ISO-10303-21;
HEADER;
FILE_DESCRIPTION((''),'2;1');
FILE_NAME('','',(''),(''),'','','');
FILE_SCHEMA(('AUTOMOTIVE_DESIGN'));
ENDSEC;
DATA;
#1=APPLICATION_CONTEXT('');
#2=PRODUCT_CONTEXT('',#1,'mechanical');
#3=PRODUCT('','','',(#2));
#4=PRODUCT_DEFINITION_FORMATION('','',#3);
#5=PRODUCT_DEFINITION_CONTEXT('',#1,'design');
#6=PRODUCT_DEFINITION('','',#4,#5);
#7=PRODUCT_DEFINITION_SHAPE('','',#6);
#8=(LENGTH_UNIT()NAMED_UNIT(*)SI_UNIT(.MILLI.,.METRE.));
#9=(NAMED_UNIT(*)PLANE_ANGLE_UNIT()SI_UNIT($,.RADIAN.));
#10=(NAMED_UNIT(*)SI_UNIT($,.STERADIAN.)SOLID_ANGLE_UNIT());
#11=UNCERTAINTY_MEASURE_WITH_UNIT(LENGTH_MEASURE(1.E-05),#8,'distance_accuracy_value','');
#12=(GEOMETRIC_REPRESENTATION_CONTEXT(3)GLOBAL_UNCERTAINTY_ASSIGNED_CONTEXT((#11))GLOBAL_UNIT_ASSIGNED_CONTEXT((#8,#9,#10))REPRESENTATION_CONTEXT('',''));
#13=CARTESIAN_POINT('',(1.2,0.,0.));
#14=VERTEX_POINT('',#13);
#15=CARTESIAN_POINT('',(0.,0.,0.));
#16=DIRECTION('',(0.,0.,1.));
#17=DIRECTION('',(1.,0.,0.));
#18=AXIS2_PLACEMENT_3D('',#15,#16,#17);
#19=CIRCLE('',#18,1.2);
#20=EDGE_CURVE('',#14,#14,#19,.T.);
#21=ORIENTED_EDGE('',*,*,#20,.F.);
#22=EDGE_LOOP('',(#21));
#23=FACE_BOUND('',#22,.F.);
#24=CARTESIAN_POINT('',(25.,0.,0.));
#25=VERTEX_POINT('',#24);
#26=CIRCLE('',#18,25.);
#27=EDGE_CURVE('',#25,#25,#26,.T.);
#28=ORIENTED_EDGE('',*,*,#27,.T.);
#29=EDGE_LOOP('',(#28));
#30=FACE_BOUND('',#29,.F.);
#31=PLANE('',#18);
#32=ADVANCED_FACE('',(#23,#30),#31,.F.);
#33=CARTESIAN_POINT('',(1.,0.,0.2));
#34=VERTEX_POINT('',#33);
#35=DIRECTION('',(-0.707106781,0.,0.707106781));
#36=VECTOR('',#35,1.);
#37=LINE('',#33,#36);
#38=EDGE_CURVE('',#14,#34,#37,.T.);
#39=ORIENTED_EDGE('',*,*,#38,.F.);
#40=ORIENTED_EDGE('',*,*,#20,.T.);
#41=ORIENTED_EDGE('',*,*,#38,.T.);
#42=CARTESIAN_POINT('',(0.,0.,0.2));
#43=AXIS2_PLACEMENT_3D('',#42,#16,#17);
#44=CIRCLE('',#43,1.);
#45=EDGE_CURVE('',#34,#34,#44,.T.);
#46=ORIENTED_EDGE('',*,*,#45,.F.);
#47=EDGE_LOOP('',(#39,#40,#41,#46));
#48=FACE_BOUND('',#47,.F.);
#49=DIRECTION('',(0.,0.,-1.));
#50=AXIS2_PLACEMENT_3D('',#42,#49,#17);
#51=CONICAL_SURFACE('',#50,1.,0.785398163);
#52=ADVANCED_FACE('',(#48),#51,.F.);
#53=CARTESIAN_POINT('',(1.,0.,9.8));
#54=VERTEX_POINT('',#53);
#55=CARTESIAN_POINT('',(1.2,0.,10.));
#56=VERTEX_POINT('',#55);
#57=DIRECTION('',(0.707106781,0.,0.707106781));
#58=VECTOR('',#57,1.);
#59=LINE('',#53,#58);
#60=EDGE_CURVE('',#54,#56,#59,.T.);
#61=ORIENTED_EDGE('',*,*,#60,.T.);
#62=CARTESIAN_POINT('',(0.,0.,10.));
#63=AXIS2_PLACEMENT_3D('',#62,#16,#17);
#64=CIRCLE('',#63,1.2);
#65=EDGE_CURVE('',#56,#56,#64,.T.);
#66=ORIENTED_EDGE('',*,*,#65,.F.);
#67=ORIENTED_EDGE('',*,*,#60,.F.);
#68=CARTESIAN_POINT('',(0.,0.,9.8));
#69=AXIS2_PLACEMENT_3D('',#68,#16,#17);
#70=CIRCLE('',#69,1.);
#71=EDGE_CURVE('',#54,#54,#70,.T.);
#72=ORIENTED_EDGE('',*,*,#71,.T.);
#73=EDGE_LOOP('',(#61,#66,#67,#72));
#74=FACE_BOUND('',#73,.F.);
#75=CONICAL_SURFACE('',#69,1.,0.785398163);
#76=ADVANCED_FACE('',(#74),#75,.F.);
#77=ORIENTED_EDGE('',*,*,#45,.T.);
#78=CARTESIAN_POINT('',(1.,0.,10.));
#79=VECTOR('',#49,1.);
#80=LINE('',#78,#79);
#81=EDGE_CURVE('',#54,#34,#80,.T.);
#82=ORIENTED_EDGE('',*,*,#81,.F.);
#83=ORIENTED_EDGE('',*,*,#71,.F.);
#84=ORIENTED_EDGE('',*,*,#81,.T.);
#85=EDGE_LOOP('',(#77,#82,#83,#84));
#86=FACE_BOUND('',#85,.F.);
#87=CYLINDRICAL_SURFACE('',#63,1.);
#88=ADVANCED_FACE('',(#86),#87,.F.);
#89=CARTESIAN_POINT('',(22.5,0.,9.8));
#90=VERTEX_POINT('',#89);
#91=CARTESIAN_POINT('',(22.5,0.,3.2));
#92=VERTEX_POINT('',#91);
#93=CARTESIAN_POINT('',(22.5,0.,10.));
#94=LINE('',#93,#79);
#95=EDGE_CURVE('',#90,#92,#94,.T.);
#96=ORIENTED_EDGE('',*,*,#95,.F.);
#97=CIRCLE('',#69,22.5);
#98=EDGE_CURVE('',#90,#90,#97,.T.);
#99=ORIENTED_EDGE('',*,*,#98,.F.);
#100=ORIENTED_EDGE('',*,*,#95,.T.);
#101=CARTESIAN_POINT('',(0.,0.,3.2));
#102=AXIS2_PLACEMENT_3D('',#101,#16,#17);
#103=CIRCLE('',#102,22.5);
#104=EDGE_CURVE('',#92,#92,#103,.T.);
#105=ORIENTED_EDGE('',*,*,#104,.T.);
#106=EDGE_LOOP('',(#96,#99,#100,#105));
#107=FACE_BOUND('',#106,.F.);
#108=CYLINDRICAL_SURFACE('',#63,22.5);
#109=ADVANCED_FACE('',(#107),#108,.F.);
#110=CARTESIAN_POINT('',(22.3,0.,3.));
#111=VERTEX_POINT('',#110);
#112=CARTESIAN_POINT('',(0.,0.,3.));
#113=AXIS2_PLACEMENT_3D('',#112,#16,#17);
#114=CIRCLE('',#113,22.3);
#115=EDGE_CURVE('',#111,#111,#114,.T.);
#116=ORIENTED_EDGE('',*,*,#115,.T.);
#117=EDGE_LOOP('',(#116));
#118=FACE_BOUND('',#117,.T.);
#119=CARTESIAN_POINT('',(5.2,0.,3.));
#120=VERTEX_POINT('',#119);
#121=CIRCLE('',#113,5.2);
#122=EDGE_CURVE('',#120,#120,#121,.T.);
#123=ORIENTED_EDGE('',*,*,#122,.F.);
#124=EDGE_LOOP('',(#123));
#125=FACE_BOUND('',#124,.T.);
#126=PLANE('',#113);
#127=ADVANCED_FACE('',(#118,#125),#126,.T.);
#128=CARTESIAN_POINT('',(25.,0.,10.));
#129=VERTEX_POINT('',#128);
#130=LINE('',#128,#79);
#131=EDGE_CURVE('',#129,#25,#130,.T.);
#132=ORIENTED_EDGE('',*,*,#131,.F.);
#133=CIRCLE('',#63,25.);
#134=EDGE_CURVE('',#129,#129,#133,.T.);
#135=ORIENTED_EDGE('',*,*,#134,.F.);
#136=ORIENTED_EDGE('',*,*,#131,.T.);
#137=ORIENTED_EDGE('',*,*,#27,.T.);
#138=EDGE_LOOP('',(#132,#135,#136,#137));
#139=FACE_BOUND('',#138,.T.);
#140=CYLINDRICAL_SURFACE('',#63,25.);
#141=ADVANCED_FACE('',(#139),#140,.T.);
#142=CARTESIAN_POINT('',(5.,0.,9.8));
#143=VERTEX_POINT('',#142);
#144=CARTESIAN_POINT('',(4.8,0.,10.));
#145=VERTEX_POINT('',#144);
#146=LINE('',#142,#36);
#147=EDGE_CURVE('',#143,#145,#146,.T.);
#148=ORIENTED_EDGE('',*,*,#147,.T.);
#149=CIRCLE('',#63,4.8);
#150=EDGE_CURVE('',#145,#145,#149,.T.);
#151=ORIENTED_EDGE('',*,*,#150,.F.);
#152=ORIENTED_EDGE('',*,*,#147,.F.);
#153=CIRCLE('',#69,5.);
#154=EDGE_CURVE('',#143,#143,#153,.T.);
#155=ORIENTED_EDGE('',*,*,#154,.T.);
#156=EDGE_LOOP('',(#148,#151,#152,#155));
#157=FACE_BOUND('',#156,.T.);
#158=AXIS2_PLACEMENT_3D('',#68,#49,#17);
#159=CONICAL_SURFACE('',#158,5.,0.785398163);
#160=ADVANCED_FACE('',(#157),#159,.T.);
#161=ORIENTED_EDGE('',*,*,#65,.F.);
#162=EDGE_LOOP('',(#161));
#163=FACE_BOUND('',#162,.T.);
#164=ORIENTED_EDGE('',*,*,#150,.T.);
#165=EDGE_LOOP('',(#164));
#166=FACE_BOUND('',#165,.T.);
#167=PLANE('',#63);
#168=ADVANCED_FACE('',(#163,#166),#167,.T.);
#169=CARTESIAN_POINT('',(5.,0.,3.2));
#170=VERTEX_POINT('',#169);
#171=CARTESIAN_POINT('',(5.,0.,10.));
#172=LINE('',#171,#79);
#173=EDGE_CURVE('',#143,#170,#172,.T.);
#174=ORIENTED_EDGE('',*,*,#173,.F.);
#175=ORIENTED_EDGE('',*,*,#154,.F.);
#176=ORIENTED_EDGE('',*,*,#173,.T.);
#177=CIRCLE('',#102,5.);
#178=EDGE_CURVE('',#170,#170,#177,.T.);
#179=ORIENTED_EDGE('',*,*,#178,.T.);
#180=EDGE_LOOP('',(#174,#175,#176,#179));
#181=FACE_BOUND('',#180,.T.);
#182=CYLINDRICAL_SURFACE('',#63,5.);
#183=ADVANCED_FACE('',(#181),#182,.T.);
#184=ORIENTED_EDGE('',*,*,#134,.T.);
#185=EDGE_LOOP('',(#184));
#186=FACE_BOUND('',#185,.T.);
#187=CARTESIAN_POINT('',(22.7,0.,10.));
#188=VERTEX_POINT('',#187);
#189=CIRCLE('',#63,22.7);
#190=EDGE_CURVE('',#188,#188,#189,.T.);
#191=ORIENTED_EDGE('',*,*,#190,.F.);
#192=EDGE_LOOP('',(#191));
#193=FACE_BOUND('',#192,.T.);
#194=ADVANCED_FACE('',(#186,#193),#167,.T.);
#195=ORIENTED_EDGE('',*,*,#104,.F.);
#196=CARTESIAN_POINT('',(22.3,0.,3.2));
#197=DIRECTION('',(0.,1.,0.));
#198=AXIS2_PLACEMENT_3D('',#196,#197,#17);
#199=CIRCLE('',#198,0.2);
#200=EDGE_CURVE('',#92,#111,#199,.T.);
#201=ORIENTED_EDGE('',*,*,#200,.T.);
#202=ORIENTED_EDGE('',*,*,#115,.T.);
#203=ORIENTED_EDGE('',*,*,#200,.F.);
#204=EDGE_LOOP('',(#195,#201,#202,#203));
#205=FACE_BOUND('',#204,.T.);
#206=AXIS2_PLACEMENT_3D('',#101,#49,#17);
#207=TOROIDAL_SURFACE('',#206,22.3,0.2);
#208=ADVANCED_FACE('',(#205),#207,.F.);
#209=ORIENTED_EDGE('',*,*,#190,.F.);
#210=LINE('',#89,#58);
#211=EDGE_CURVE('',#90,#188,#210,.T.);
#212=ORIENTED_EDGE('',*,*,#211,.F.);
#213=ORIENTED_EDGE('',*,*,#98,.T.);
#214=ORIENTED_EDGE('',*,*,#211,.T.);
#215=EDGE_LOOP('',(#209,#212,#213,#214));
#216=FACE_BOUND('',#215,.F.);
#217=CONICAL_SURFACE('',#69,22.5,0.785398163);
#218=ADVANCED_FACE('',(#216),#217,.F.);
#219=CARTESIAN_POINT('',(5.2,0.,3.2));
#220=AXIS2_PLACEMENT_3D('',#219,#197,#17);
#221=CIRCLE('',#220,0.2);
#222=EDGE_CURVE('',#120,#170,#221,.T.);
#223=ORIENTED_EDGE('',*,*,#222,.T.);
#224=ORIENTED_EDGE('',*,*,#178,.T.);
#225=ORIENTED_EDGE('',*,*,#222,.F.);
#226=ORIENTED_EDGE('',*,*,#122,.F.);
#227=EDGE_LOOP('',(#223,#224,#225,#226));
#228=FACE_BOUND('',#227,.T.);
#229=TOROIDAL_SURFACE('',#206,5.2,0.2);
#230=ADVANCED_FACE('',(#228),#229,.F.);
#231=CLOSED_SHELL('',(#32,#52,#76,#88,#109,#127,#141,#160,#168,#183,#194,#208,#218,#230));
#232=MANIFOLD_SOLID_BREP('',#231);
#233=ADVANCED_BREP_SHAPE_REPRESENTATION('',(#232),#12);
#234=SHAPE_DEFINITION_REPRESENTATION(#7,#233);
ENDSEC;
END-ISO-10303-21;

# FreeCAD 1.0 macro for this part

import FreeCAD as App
import Part
import Sketcher
from FreeCAD import Vector


def edges_at(feature, points):
    """Names of the edges that pass closest to the given points."""
    edges = feature.Shape.Edges
    near = lambda p: min(range(len(edges)), key=lambda i: edges[i].distToShape(Part.Vertex(*p))[0])
    return sorted({f"Edge{near(p) + 1}" for p in points})

doc = App.newDocument("Part")
body = doc.addObject("PartDesign::Body", "Body")

# Sketch on XY plane
sketch1 = body.newObject("Sketcher::SketchObject", "Sketch")
sketch1.AttachmentSupport = (doc.getObject("XY_Plane"), [""])
sketch1.MapMode = "FlatFace"
sketch1.addGeometry(Part.Circle(Vector(0, 0, 0), Vector(0, 0, 1), 30), False)
sketch1.addConstraint(Sketcher.Constraint("Coincident", 0, 3, -1, 1))
sketch1.addConstraint(Sketcher.Constraint("Diameter", 0, 60.0))
pad1 = body.newObject("PartDesign::Pad", "Pad")
pad1.Profile = sketch1
pad1.Length = 10

# Sketch on XY plane
sketch2 = body.newObject("Sketcher::SketchObject", "Sketch001")
sketch2.AttachmentSupport = (doc.getObject("XY_Plane"), [""])
sketch2.MapMode = "FlatFace"
sketch2.AttachmentOffset = App.Placement(Vector(0, 0, 10), App.Rotation())
sketch2.addGeometry(Part.Circle(Vector(0, 0, 0), Vector(0, 0, 1), 22), False)
sketch2.addGeometry(Part.Circle(Vector(0, 0, 0), Vector(0, 0, 1), 5), False)
sketch2.addConstraint(Sketcher.Constraint("Coincident", 0, 3, -1, 1))
sketch2.addConstraint(Sketcher.Constraint("Coincident", 1, 3, -1, 1))
sketch2.addConstraint(Sketcher.Constraint("Diameter", 1, 10.0))
sketch2.addConstraint(Sketcher.Constraint("Diameter", 0, 45.0))
pocket1 = body.newObject("PartDesign::Pocket", "Pocket")
pocket1.Profile = sketch2
pocket1.Length = 7

# Sketch on XY plane
sketch3 = body.newObject("Sketcher::SketchObject", "Sketch002")
sketch3.AttachmentSupport = (doc.getObject("XY_Plane"), [""])
sketch3.MapMode = "FlatFace"
sketch3.AttachmentOffset = App.Placement(Vector(0, 0, 10), App.Rotation())
sketch3.addGeometry(Part.Circle(Vector(0, 0, 0), Vector(0, 0, 1), 1), False)
sketch3.addConstraint(Sketcher.Constraint("Coincident", 0, 3, -1, 1))
sketch3.addConstraint(Sketcher.Constraint("Diameter", 0, 2.0))
pocket2 = body.newObject("PartDesign::Pocket", "Pocket001")
pocket2.Profile = sketch3
pocket2.Type = "ThroughAll"
pocket2.Midplane = True
doc.recompute()

fillet = body.newObject("PartDesign::Fillet", "Fillet")
fillet.Base = (pocket2, edges_at(pocket2, [(-22.5, 0, 3), (-5, 0, 3)]))
fillet.Radius = 0.2
doc.recompute()

chamfer = body.newObject("PartDesign::Chamfer", "Chamfer")
chamfer.Base = (fillet, edges_at(fillet, [
    (-30, 0, 0),
    (-30, 0, 10),
    (-22.5, 0, 10),
    (-5, 0, 10),
    (-1, 0, 10),
    (-1, 0, 0),
]))
chamfer.Size = 0.2

# Sketch on XY plane
sketch4 = body.newObject("Sketcher::SketchObject", "Sketch003")
sketch4.AttachmentSupport = (doc.getObject("XY_Plane"), [""])
sketch4.MapMode = "FlatFace"
sketch4.AttachmentOffset = App.Placement(Vector(0, 0, 10), App.Rotation())
sketch4.addGeometry(Part.Circle(Vector(0, 0, 0), Vector(0, 0, 1), 40), False)
sketch4.addGeometry(Part.Circle(Vector(0, 0, 0), Vector(0, 0, 1), 25), False)
sketch4.addConstraint(Sketcher.Constraint("Coincident", 0, 3, -1, 1))
sketch4.addConstraint(Sketcher.Constraint("Coincident", 1, 3, -1, 1))
sketch4.addConstraint(Sketcher.Constraint("Diameter", 1, 50.0))
sketch4.addConstraint(Sketcher.Constraint("Diameter", 0, 80.0))
pocket3 = body.newObject("PartDesign::Pocket", "Pocket002")
pocket3.Profile = sketch4
pocket3.Type = "ThroughAll"
pocket3.Midplane = True

doc.recompute()
